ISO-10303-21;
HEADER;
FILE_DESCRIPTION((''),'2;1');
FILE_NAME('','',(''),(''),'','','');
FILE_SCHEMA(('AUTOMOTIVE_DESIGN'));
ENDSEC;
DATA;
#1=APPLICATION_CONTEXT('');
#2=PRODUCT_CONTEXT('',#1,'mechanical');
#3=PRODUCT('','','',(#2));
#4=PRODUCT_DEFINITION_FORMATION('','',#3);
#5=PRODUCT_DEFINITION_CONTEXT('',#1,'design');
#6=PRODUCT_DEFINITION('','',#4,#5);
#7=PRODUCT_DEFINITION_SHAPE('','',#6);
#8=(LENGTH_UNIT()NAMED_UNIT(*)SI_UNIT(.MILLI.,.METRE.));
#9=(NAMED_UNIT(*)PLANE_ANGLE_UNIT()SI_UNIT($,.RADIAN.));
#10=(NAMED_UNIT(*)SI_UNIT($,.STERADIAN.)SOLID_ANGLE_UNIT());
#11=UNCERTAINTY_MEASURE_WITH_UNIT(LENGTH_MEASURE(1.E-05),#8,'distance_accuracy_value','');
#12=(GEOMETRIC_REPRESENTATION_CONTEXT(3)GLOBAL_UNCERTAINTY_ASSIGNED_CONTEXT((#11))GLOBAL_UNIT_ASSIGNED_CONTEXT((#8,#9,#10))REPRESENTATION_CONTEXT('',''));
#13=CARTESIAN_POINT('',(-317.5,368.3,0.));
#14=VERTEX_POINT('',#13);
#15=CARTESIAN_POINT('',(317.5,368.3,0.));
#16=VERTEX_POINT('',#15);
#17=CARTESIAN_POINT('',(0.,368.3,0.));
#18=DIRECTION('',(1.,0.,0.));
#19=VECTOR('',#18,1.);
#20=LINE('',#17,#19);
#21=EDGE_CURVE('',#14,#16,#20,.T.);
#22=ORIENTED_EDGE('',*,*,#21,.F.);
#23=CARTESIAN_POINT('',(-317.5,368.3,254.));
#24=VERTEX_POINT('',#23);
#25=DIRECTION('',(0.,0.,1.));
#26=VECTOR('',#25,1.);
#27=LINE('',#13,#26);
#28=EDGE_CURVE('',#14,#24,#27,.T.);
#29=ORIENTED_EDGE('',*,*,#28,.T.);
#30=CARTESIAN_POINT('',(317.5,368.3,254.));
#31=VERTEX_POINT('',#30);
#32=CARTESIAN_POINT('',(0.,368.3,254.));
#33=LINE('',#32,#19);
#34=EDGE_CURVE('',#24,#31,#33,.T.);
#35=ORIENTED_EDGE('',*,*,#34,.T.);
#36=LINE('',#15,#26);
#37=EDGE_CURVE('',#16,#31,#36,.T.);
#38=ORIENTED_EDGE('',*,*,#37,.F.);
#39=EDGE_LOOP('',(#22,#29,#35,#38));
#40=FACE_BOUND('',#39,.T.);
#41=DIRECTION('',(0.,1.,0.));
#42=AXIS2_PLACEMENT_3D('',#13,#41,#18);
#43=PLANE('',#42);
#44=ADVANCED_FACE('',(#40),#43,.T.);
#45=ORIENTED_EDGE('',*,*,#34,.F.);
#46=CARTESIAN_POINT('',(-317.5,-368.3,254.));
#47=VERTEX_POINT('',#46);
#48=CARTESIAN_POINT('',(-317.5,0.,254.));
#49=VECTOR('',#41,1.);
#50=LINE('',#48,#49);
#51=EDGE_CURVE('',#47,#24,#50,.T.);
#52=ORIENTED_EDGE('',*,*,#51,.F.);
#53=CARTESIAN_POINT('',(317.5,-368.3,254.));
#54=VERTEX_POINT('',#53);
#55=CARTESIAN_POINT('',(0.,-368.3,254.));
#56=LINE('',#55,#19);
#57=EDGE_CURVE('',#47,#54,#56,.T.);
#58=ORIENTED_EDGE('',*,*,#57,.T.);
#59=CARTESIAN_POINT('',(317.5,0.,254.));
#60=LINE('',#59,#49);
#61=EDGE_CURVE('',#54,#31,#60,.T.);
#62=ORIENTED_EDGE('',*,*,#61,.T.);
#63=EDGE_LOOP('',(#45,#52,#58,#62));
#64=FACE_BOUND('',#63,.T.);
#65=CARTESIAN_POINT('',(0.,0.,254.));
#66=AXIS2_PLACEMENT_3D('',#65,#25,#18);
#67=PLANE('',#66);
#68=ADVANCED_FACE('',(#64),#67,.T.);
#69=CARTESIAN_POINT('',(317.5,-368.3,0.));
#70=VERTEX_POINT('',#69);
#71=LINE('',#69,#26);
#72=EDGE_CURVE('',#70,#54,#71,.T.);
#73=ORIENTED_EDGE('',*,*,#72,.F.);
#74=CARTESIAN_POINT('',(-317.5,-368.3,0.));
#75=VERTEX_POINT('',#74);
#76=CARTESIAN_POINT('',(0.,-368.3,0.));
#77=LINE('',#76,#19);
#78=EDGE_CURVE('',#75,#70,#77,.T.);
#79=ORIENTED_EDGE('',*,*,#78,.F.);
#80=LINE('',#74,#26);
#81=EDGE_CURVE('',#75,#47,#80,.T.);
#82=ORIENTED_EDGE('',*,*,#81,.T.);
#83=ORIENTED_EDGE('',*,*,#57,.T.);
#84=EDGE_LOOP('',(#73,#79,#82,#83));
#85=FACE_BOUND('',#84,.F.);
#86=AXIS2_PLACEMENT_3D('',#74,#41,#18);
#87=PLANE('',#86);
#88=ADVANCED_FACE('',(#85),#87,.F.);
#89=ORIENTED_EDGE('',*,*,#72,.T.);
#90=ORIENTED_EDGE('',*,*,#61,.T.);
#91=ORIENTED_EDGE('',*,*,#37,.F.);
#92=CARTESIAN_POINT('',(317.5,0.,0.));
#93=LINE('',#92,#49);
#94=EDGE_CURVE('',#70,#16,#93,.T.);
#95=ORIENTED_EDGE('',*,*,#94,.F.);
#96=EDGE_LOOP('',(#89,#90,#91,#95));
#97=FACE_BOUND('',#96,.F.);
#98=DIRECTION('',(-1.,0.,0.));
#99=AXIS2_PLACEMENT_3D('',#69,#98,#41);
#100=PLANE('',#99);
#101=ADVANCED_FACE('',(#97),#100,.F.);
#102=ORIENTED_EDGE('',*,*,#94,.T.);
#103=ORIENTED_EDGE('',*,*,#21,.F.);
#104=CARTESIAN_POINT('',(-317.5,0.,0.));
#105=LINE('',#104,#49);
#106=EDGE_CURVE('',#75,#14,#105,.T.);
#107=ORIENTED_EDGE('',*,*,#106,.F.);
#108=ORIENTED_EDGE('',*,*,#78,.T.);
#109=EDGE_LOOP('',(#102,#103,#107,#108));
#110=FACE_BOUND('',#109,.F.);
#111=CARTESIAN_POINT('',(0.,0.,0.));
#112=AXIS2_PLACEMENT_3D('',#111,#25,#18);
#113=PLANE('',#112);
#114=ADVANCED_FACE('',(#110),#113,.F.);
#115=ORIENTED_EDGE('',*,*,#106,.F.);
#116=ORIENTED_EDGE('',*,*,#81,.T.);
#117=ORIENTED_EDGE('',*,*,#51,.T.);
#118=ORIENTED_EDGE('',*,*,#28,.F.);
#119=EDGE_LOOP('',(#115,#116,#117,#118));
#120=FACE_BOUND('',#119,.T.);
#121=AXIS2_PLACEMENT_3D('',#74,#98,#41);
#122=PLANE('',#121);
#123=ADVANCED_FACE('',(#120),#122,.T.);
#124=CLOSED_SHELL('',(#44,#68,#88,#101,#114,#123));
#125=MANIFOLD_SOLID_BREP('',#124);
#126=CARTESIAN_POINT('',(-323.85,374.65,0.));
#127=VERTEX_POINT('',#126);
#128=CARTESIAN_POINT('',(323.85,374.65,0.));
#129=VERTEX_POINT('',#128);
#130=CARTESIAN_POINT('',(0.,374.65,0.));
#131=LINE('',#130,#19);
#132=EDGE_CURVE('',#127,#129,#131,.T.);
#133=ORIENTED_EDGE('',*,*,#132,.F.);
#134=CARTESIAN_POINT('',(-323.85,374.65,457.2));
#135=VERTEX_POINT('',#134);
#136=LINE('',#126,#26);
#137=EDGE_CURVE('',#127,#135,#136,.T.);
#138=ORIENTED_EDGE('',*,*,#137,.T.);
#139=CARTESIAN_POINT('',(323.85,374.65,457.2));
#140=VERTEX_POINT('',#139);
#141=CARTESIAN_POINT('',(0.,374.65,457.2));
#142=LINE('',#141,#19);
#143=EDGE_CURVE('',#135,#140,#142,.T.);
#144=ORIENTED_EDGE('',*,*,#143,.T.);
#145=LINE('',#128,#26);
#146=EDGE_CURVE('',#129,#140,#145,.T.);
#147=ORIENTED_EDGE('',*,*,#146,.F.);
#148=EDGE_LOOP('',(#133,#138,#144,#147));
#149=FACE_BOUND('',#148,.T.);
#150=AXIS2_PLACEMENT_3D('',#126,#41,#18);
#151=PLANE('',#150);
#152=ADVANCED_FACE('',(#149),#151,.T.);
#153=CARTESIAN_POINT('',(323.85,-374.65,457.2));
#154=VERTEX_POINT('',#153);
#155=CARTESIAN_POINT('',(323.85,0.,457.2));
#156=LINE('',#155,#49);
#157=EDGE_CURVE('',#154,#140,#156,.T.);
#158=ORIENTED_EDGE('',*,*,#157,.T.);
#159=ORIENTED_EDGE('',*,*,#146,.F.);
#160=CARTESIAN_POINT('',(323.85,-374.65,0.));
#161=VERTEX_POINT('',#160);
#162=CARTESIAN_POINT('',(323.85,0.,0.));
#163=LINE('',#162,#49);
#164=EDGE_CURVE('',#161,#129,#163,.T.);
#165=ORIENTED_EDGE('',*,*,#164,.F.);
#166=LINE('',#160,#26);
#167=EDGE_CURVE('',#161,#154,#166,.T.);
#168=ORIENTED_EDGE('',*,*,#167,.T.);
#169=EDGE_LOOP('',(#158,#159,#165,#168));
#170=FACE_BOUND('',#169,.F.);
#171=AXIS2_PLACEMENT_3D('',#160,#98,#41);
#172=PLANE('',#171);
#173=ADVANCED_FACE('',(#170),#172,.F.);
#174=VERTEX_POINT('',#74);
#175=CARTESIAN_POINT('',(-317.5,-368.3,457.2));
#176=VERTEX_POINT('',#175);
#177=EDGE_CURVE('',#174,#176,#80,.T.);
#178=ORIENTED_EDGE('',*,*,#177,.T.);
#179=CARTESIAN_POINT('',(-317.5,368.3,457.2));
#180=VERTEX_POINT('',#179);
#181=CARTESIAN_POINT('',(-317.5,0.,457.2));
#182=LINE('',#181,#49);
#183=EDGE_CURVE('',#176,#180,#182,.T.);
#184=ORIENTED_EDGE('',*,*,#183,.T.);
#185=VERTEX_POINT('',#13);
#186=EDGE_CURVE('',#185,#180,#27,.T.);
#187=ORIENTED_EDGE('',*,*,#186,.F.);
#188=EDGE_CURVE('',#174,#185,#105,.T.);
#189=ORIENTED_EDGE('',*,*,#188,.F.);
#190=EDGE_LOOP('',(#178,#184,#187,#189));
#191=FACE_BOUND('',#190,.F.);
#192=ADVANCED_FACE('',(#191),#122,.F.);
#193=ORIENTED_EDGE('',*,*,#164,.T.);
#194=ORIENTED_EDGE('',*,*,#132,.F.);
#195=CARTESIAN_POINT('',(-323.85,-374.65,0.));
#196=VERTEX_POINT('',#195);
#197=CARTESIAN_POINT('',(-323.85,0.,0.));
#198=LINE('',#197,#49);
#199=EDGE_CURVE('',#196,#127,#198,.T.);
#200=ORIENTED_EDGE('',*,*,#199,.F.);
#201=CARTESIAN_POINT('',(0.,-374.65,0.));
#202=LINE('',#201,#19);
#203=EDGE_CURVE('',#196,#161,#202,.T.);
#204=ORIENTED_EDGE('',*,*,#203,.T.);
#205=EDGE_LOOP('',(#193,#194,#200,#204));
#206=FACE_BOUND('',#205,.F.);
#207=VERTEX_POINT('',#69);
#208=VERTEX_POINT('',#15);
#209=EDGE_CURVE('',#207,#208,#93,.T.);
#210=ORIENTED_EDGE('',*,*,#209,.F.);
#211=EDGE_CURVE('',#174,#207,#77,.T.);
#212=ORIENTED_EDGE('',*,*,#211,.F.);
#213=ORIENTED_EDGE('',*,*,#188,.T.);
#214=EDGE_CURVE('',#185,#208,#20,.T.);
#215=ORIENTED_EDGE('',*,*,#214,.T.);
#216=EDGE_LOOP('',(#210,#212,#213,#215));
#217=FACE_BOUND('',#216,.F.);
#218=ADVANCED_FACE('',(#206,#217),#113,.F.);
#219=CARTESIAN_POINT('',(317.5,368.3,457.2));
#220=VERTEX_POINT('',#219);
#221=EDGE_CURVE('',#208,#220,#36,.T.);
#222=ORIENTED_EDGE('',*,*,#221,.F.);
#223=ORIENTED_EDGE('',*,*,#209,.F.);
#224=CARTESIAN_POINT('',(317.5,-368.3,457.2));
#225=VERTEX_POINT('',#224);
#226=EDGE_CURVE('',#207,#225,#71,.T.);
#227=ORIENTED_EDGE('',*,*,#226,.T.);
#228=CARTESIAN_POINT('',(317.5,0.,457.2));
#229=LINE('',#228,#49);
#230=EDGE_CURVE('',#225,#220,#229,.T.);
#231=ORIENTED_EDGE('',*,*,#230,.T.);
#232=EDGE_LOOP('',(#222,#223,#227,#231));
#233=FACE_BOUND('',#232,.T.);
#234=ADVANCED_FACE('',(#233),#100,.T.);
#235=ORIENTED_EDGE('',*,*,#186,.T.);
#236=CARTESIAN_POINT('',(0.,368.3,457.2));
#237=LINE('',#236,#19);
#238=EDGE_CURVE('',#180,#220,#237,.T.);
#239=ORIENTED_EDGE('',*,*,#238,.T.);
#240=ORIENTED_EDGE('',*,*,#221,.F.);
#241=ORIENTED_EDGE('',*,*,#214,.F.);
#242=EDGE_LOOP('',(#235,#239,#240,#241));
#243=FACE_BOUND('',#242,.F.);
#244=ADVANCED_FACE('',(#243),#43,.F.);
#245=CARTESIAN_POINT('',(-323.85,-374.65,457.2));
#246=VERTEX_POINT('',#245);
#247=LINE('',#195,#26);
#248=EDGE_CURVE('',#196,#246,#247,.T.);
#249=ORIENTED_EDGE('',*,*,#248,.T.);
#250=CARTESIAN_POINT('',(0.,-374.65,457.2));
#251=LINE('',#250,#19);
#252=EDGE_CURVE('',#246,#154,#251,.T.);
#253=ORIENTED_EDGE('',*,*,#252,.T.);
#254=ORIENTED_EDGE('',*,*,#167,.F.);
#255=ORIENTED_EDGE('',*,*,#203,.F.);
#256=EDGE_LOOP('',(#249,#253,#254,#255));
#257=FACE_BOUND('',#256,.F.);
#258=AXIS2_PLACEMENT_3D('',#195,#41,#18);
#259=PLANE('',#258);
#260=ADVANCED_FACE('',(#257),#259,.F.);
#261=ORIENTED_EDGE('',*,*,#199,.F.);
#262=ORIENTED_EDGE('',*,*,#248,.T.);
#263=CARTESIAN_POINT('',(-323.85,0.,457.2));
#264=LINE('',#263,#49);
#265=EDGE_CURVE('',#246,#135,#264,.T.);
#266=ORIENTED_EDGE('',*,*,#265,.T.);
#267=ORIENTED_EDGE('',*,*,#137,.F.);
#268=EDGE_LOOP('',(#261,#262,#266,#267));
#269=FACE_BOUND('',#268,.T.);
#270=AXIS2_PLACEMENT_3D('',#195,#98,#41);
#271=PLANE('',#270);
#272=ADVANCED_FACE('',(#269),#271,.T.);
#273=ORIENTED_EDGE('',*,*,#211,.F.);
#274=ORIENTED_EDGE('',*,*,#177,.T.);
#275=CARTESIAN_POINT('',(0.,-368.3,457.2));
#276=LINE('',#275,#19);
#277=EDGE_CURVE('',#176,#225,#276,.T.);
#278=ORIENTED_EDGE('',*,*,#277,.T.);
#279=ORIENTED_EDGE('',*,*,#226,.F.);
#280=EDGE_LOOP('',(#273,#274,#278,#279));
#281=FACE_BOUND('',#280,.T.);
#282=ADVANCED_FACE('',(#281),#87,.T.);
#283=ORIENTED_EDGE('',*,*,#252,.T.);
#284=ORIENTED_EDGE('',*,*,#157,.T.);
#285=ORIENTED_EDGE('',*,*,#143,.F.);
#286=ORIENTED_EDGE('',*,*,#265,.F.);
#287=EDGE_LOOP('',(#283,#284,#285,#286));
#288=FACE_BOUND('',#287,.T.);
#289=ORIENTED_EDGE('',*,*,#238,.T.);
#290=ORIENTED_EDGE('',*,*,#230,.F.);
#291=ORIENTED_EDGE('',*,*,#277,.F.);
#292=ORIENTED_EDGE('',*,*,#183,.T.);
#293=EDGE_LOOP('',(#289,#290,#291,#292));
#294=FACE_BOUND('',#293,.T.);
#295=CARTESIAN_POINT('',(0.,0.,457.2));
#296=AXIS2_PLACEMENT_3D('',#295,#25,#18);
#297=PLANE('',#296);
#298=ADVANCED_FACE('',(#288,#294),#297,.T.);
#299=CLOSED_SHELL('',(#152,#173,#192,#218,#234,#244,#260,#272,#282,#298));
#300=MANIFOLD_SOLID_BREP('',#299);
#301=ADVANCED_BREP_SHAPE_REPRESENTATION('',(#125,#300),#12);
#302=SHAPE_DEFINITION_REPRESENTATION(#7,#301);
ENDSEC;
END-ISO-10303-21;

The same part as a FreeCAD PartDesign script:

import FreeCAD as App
import Part
import Sketcher
Q = App.Units.Quantity


def add_polygon(sketch, points):
    """Adds a closed chain of lines whose ends are joined by coincident constraints."""
    first, n = sketch.GeometryCount, len(points)
    for a, b in zip(points, points[1:] + points[:1]):
        sketch.addGeometry(Part.LineSegment(App.Vector(*a, 0), App.Vector(*b, 0)), False)
    for i in range(n):
        sketch.addConstraint(Sketcher.Constraint("Coincident", first + i, 2, first + (i + 1) % n, 1))

doc = App.newDocument("Part")
params = doc.addObject("Spreadsheet::Sheet", "Params")
for row, (alias, value) in enumerate([
    ("sketch1_width", "25 in"),
    ("sketch1_height", "29 in"),
    ("sketch1_width2", "25.5 in"),
    ("sketch1_height2", "29.5 in"),
    ("pad1_length", "18 in"),
    ("sketch2_width", "25 in"),
    ("sketch2_height", "29 in"),
    ("pad2_length", "10 in"),
], start=1):
    params.set(f"A{row}", alias)
    params.set(f"B{row}", "=" + value)
    params.setAlias(f"B{row}", alias)

body = doc.addObject("PartDesign::Body", "Body")

sketch1 = body.newObject("Sketcher::SketchObject", "Sketch")
sketch1.AttachmentSupport = (doc.getObject("XY_Plane"), [""])
sketch1.MapMode = "FlatFace"
add_polygon(sketch1, [(-324, 375), (-324, -375), (324, -375), (324, 375)])
add_polygon(sketch1, [(318, -368), (-318, -368), (-318, 368), (318, 368)])
sketch1.addConstraint([
    Sketcher.Constraint("Vertical", 0),
    Sketcher.Constraint("Horizontal", 1),
    Sketcher.Constraint("Vertical", 2),
    Sketcher.Constraint("Horizontal", 3),
    Sketcher.Constraint("Horizontal", 4),
    Sketcher.Constraint("Vertical", 5),
    Sketcher.Constraint("Horizontal", 6),
    Sketcher.Constraint("Vertical", 7),
    Sketcher.Constraint("Symmetric", 0, 2, 2, 2, -1, 1),
    Sketcher.Constraint("Symmetric", 4, 2, 6, 2, -1, 1),
    Sketcher.Constraint("DistanceX", 4, 2, 4, 1, Q("25 in")),
    Sketcher.Constraint("DistanceY", 5, 1, 5, 2, Q("29 in")),
    Sketcher.Constraint("DistanceX", 1, 1, 1, 2, Q("25.5 in")),
    Sketcher.Constraint("DistanceY", 0, 2, 0, 1, Q("29.5 in")),
])
sketch1.setExpression("Constraints[18]", "Params.sketch1_width")
sketch1.setExpression("Constraints[19]", "Params.sketch1_height")
sketch1.setExpression("Constraints[20]", "Params.sketch1_width2")
sketch1.setExpression("Constraints[21]", "Params.sketch1_height2")
pad1 = body.newObject("PartDesign::Pad", "Pad")
pad1.Profile = sketch1
pad1.setExpression("Length", "Params.pad1_length")
body2 = doc.addObject("PartDesign::Body", "Body001")

sketch2 = body2.newObject("Sketcher::SketchObject", "Sketch001")
sketch2.AttachmentSupport = (doc.getObject("XY_Plane001"), [""])
sketch2.MapMode = "FlatFace"
add_polygon(sketch2, [(-318, 368), (-318, -368), (318, -368), (318, 368)])
sketch2.addConstraint([
    Sketcher.Constraint("Vertical", 0),
    Sketcher.Constraint("Horizontal", 1),
    Sketcher.Constraint("Vertical", 2),
    Sketcher.Constraint("Horizontal", 3),
    Sketcher.Constraint("Symmetric", 0, 2, 2, 2, -1, 1),
    Sketcher.Constraint("DistanceX", 1, 1, 1, 2, Q("25 in")),
    Sketcher.Constraint("DistanceY", 0, 2, 0, 1, Q("29 in")),
])
sketch2.setExpression("Constraints[9]", "Params.sketch2_width")
sketch2.setExpression("Constraints[10]", "Params.sketch2_height")
pad2 = body2.newObject("PartDesign::Pad", "Pad001")
pad2.Profile = sketch2
pad2.setExpression("Length", "Params.pad2_length")

doc.recompute()
